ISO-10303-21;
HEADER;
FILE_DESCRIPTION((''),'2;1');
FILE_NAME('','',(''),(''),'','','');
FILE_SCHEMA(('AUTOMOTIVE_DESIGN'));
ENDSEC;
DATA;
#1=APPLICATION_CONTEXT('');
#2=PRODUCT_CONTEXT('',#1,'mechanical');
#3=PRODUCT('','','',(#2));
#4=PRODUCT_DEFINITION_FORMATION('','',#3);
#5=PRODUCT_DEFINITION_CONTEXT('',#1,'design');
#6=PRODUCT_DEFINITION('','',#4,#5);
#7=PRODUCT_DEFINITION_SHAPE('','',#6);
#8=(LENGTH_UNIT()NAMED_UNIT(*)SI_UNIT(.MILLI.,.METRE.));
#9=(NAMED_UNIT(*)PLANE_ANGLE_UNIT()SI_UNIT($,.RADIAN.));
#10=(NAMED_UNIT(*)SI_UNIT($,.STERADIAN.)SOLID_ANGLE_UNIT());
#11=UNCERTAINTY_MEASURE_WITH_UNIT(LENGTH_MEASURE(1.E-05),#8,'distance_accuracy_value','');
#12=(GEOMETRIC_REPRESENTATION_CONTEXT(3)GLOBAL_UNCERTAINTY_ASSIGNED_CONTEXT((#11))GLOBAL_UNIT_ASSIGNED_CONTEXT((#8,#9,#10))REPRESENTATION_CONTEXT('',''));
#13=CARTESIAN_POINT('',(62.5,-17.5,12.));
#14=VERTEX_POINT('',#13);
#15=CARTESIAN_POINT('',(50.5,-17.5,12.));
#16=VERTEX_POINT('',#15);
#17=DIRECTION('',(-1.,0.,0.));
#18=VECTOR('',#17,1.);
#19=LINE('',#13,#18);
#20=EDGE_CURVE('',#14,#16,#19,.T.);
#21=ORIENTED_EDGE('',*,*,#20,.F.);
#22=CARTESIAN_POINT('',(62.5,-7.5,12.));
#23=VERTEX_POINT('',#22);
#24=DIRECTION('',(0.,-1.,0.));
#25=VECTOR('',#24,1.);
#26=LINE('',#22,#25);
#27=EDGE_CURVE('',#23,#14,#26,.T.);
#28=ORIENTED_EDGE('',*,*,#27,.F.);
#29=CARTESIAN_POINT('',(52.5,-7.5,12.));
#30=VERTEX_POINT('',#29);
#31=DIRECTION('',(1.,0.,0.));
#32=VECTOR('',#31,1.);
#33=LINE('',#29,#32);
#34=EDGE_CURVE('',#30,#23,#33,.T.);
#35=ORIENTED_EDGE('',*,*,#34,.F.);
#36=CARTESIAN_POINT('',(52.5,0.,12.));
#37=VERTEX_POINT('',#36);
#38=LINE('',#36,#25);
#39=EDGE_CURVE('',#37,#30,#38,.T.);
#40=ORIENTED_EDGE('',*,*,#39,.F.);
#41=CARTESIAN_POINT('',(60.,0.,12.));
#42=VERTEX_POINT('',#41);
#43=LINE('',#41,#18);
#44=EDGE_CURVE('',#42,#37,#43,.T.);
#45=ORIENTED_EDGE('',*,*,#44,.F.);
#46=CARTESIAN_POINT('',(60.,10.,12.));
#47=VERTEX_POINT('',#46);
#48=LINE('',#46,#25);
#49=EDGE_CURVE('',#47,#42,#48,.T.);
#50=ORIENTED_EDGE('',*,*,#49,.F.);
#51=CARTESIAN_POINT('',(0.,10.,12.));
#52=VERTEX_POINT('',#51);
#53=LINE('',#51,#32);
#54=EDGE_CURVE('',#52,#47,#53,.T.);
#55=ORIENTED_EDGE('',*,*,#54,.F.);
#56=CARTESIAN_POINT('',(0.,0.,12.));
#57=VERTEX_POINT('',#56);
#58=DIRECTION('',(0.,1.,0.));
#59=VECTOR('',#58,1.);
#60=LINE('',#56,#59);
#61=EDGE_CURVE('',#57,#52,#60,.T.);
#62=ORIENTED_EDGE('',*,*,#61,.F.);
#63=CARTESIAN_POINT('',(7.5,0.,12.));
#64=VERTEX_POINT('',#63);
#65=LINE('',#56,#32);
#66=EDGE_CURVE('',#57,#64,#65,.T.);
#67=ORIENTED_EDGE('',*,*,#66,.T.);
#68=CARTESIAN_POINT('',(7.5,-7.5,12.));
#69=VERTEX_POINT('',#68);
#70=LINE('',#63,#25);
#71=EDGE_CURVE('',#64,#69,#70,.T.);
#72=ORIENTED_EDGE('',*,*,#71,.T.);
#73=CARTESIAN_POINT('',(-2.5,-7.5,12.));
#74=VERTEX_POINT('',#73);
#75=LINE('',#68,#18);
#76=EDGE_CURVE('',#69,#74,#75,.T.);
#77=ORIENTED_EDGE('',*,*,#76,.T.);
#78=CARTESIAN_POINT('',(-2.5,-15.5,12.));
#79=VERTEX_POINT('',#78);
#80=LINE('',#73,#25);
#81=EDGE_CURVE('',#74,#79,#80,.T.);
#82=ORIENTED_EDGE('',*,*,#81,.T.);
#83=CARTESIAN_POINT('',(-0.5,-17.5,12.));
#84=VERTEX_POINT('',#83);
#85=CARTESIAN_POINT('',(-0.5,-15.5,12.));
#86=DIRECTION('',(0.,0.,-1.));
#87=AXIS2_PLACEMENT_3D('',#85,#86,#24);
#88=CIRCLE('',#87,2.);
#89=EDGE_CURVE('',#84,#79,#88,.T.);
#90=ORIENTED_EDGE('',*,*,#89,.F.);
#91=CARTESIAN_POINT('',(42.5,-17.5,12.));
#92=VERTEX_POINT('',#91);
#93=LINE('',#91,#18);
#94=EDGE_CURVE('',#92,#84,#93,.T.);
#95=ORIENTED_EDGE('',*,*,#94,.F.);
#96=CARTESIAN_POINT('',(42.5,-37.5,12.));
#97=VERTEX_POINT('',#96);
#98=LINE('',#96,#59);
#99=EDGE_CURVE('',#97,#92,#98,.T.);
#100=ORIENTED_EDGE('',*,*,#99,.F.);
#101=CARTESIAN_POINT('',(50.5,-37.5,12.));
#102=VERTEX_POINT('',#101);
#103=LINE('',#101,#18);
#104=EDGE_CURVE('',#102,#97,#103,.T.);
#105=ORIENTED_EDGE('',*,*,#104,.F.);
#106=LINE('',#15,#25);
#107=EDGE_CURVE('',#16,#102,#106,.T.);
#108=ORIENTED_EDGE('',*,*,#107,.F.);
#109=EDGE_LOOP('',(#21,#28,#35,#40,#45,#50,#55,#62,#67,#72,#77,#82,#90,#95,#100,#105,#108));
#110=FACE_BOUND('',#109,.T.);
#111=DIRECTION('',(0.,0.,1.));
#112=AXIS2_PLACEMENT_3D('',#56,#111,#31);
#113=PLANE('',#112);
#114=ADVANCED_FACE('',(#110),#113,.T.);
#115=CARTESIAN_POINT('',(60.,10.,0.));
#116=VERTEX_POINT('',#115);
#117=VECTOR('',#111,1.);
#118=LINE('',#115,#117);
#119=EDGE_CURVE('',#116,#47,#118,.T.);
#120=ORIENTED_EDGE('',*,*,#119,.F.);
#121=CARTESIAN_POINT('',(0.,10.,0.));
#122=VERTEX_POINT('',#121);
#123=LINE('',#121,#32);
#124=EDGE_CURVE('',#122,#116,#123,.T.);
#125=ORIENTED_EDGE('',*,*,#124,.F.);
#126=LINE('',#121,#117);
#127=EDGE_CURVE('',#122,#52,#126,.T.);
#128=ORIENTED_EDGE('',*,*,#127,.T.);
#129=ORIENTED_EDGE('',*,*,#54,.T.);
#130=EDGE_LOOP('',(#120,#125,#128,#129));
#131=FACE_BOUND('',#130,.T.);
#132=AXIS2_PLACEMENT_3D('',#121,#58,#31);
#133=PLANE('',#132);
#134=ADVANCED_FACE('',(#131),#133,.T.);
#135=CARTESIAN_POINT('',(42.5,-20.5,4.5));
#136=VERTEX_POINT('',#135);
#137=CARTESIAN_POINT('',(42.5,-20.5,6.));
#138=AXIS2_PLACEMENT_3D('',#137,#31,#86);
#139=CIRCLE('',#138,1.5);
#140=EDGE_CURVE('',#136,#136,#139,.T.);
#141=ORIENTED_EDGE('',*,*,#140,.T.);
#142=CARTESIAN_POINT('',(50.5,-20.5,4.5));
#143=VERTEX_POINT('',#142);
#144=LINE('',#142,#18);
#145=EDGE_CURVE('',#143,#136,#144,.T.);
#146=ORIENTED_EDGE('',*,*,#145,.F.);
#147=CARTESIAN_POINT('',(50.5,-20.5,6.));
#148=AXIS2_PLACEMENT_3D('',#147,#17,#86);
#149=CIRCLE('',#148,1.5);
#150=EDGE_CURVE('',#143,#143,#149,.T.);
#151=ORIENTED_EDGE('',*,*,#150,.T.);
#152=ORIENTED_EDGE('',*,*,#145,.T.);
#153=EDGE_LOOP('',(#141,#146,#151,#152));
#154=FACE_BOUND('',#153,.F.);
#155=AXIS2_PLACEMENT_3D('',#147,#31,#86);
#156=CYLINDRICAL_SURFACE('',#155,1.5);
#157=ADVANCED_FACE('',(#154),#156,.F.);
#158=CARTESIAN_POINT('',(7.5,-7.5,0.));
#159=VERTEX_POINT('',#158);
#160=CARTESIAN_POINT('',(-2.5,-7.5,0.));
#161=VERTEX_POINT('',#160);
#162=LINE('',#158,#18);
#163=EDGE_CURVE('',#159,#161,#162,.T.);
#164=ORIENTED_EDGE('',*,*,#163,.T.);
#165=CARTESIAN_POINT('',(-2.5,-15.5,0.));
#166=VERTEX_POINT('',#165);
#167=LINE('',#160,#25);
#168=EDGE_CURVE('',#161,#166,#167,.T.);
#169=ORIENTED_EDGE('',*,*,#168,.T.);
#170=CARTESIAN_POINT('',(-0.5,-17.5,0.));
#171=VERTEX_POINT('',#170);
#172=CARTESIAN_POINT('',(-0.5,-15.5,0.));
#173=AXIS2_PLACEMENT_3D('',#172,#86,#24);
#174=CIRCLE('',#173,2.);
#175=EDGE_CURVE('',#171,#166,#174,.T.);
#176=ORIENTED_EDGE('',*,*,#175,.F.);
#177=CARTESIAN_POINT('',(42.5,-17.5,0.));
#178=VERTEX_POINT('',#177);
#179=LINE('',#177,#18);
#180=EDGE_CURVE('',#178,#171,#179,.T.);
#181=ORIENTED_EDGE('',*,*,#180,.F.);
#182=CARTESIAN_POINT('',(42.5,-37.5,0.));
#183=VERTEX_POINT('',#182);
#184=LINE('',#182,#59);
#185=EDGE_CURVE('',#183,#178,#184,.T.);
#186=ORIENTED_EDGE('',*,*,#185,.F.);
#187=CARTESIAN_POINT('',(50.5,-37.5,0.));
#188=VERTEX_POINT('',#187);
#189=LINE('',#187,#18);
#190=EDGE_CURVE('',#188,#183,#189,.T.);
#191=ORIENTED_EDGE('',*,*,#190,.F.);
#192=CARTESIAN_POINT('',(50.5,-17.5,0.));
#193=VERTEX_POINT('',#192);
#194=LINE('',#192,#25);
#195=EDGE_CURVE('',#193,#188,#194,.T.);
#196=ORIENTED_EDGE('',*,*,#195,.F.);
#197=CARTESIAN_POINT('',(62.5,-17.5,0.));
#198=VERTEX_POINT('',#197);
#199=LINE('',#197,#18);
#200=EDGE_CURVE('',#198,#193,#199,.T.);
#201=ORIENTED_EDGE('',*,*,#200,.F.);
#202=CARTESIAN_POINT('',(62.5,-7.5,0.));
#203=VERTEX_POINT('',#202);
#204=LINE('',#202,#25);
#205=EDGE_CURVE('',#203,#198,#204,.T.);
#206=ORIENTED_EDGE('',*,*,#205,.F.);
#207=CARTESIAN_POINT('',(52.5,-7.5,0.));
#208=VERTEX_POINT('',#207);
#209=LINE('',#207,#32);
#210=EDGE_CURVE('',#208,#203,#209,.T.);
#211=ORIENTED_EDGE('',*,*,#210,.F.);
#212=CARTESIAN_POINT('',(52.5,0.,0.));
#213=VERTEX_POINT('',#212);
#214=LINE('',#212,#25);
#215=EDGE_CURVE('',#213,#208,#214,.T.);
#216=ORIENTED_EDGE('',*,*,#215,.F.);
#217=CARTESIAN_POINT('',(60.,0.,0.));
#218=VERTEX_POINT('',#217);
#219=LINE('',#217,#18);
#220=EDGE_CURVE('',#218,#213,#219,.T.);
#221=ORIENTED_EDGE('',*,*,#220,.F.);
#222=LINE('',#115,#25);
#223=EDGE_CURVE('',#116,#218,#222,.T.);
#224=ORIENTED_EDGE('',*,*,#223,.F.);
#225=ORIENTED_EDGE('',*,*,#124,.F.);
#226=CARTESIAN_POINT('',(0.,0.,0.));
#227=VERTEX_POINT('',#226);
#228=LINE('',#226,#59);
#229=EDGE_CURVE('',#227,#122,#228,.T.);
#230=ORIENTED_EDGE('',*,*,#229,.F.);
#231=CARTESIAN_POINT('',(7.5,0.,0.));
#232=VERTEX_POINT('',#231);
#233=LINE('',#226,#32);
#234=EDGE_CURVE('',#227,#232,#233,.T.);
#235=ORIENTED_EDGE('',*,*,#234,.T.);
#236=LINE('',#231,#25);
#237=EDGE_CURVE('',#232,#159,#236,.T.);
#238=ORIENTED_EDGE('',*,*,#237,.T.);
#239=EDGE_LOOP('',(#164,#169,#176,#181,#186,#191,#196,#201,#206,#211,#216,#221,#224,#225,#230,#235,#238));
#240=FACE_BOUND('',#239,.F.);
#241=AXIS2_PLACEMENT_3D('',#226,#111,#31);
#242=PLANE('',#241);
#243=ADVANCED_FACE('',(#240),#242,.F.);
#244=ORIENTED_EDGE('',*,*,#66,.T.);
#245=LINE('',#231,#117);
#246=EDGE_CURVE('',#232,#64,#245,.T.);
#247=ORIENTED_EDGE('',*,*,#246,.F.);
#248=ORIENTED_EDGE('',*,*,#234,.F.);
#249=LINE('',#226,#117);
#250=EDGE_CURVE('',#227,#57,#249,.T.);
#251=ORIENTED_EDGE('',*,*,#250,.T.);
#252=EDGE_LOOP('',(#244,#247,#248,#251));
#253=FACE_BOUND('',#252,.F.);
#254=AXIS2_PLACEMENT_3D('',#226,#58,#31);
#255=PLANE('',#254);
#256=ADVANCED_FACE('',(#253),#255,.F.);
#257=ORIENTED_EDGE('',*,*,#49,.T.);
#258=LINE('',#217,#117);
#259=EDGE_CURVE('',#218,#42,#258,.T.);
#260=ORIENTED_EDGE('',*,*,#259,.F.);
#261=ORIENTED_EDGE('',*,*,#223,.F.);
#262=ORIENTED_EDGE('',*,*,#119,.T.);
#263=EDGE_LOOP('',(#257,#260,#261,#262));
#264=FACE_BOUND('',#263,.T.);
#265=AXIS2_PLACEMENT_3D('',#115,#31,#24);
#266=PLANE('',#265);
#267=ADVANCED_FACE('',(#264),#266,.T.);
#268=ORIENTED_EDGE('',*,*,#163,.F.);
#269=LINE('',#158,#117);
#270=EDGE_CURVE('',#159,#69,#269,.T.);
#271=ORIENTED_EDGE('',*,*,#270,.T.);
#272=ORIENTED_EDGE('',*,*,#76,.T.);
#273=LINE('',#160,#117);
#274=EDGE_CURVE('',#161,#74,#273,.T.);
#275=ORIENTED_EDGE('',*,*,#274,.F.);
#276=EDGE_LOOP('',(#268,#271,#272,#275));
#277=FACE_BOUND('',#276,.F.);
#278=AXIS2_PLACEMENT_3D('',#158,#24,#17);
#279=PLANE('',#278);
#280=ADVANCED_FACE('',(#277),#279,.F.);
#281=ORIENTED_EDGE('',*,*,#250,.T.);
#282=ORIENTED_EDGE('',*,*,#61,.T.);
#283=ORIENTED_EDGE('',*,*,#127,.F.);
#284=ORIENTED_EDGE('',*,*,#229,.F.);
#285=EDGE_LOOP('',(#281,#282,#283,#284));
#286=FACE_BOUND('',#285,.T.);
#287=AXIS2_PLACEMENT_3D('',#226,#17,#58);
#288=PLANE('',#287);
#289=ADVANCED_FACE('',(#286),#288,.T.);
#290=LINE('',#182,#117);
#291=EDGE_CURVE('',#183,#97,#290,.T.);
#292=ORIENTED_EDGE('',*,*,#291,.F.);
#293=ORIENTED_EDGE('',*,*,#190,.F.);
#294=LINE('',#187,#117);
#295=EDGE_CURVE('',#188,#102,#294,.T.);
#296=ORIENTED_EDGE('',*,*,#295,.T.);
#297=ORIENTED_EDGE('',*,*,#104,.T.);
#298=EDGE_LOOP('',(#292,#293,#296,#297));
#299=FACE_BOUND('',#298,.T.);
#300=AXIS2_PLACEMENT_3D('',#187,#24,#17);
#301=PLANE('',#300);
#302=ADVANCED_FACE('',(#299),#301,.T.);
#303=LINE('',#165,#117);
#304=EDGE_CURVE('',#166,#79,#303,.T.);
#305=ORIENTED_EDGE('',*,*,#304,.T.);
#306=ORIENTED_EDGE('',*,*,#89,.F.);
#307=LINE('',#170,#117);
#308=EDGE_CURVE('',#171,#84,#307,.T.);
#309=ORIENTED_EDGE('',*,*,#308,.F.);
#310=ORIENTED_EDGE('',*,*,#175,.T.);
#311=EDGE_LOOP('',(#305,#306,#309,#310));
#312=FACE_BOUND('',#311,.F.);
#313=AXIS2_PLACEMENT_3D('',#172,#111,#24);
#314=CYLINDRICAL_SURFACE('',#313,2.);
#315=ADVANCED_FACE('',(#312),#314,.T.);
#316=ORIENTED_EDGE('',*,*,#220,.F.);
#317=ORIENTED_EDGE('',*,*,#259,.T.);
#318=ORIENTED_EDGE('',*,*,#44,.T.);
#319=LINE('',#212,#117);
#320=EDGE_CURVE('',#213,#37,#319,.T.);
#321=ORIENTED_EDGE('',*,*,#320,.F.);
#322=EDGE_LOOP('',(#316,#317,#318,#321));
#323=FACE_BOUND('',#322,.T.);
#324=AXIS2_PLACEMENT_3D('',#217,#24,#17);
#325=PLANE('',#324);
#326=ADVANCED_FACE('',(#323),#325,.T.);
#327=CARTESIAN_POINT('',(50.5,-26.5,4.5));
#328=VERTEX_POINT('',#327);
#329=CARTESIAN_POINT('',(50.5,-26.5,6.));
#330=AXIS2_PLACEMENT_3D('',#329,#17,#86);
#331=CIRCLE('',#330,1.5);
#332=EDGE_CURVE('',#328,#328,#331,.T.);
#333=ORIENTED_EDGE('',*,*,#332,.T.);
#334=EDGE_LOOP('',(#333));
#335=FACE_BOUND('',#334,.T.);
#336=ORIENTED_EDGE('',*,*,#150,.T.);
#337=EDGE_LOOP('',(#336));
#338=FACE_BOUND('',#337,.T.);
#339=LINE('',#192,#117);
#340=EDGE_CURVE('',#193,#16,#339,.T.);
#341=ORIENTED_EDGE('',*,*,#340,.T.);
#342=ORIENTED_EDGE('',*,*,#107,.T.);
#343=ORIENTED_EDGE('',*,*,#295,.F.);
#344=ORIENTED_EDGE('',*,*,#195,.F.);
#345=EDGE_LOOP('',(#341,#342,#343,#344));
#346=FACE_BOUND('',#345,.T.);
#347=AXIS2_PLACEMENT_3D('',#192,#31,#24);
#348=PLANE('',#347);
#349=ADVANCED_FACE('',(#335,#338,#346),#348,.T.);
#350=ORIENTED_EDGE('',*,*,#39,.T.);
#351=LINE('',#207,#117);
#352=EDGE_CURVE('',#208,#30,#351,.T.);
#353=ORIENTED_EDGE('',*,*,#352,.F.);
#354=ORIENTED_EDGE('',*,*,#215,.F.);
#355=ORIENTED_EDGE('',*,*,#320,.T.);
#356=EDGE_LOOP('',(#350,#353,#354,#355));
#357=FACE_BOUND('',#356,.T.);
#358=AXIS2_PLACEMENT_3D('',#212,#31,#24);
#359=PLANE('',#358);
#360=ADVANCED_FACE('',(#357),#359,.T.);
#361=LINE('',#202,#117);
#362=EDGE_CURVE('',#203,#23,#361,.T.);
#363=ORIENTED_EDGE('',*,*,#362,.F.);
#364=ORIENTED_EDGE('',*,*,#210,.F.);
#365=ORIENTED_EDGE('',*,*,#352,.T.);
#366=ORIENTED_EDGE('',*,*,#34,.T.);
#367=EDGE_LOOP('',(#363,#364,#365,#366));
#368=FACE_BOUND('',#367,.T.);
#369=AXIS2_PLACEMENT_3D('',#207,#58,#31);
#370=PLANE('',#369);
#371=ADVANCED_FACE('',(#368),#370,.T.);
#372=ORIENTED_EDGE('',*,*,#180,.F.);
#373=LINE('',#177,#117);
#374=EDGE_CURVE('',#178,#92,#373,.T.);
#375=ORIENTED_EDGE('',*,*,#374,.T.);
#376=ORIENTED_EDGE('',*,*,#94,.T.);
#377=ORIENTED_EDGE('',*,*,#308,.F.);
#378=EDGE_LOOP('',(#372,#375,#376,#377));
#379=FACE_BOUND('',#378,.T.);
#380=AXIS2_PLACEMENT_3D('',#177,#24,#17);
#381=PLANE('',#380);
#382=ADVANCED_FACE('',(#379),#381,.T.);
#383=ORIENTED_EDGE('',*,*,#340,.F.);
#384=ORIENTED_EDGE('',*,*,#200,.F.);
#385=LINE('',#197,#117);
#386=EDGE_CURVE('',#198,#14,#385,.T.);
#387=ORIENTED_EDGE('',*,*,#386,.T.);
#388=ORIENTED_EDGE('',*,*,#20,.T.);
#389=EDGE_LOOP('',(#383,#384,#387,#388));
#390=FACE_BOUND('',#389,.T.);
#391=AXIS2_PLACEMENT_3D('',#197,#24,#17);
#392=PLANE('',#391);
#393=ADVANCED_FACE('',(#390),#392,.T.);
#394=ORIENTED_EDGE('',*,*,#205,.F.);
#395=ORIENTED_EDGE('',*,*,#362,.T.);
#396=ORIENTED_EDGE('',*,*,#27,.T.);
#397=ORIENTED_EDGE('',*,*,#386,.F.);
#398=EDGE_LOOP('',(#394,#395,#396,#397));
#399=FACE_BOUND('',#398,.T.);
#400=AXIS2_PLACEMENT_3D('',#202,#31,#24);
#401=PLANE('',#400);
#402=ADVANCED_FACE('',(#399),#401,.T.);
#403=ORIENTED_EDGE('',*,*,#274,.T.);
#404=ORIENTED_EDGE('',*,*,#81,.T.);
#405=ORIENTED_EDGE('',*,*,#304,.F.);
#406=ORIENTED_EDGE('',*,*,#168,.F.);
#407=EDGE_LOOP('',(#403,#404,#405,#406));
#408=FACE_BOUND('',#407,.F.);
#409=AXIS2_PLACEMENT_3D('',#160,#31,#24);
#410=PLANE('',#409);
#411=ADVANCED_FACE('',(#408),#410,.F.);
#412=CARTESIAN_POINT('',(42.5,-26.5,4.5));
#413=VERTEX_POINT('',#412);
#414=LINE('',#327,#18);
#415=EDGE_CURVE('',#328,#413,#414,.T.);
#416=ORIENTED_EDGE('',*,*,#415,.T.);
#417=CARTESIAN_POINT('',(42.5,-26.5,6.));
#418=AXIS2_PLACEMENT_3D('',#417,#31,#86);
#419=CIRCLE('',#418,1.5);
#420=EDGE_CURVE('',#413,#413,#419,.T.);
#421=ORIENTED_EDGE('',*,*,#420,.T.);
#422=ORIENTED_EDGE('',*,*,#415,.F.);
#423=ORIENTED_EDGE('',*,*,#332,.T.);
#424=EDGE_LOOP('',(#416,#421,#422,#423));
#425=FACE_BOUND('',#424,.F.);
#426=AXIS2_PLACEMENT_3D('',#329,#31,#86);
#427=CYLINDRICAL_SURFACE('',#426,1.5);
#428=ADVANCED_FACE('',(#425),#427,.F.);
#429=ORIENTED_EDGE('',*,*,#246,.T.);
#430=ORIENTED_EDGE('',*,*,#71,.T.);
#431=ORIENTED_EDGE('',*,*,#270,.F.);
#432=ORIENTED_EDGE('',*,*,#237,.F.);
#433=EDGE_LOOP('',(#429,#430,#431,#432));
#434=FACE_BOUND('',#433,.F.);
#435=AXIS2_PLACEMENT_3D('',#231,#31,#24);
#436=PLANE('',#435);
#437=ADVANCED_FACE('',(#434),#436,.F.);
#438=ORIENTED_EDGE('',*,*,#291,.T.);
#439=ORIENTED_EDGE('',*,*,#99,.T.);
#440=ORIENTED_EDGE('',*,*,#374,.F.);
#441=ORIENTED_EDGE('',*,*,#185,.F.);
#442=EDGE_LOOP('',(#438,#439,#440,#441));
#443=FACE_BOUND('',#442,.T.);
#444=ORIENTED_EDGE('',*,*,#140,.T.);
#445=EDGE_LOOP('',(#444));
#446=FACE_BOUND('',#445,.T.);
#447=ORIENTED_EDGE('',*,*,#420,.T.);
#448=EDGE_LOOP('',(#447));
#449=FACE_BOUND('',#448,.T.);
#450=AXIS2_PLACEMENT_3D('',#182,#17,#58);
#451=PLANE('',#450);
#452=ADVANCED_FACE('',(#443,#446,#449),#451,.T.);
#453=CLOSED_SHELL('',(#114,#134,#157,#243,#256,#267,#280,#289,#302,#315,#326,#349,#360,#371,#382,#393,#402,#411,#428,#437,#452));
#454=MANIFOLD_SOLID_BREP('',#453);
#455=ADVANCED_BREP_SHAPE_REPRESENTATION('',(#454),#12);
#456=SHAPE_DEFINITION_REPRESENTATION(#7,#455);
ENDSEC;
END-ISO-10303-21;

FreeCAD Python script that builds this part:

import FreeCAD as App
import Part
import Sketcher

V = App.Vector
Q = App.Units.Quantity


def edges_at(feature, points):
    """Names of the edges that pass closest to the given points."""
    edges = feature.Shape.Edges
    near = lambda p: min(range(len(edges)), key=lambda i: edges[i].distToShape(Part.Vertex(*p))[0])
    return sorted({f"Edge{near(p) + 1}" for p in points})

doc = App.newDocument("Part")
params = doc.addObject("Spreadsheet::Sheet", "Params")
for row, (alias, value) in enumerate([
    ("sketch1_width", "10 mm"),
    ("sketch1_width2", "8 mm"),
    ("sketch1_width3", "12 mm"),
    ("sketch1_width4", "60 mm"),
    ("sketch1_height", "20 mm"),
    ("pad1_length", "12 mm"),
    ("sketch2_diameter", "3 mm"),
    ("fillet_radius", "2 mm"),
], start=1):
    params.set(f"A{row}", alias)
    params.set(f"B{row}", "=" + value)
    params.setAlias(f"B{row}", alias)

body = doc.addObject("PartDesign::Body", "Body")

# Sketch on XY plane
sketch1 = doc.addObject("Sketcher::SketchObject", "Sketch")
body.addObject(sketch1)
sketch1.AttachmentSupport = (doc.XY_Plane, [""])
sketch1.MapMode = "FlatFace"
sketch1.addGeometry([
    Part.LineSegment(V(0, 10, 0), V(0, 0, 0)),  # 0
    Part.LineSegment(V(0, 0, 0), V(8, 0, 0)),  # 1
    Part.LineSegment(V(8, 0, 0), V(8, -8, 0)),  # 2
    Part.LineSegment(V(8, -8, 0), V(-2, -8, 0)),  # 3
    Part.LineSegment(V(-2, -8, 0), V(-2, -18, 0)),  # 4
    Part.LineSegment(V(-2, -18, 0), V(42, -18, 0)),  # 5
    Part.LineSegment(V(42, -18, 0), V(42, -38, 0)),  # 6
    Part.LineSegment(V(42, -38, 0), V(50, -38, 0)),  # 7
    Part.LineSegment(V(50, -38, 0), V(50, -18, 0)),  # 8
    Part.LineSegment(V(50, -18, 0), V(62, -18, 0)),  # 9
    Part.LineSegment(V(62, -18, 0), V(62, -8, 0)),  # 10
    Part.LineSegment(V(62, -8, 0), V(52, -8, 0)),  # 11
    Part.LineSegment(V(52, -8, 0), V(52, 0, 0)),  # 12
    Part.LineSegment(V(52, 0, 0), V(60, 0, 0)),  # 13
    Part.LineSegment(V(60, 0, 0), V(60, 10, 0)),  # 14
    Part.LineSegment(V(60, 10, 0), V(0, 10, 0)),  # 15
], False)
sketch1.addConstraint([
    Sketcher.Constraint("Coincident", 0, 2, 1, 1),
    Sketcher.Constraint("Coincident", 1, 2, 2, 1),
    Sketcher.Constraint("Coincident", 2, 2, 3, 1),
    Sketcher.Constraint("Coincident", 3, 2, 4, 1),
    Sketcher.Constraint("Coincident", 4, 2, 5, 1),
    Sketcher.Constraint("Coincident", 5, 2, 6, 1),
    Sketcher.Constraint("Coincident", 6, 2, 7, 1),
    Sketcher.Constraint("Coincident", 7, 2, 8, 1),
    Sketcher.Constraint("Coincident", 8, 2, 9, 1),
    Sketcher.Constraint("Coincident", 9, 2, 10, 1),
    Sketcher.Constraint("Coincident", 10, 2, 11, 1),
    Sketcher.Constraint("Coincident", 11, 2, 12, 1),
    Sketcher.Constraint("Coincident", 12, 2, 13, 1),
    Sketcher.Constraint("Coincident", 13, 2, 14, 1),
    Sketcher.Constraint("Coincident", 14, 2, 15, 1),
    Sketcher.Constraint("Coincident", 15, 2, 0, 1),
    Sketcher.Constraint("Vertical", 0),
    Sketcher.Constraint("Horizontal", 1),
    Sketcher.Constraint("Vertical", 2),
    Sketcher.Constraint("Horizontal", 3),
    Sketcher.Constraint("Vertical", 4),
    Sketcher.Constraint("Horizontal", 5),
    Sketcher.Constraint("Vertical", 6),
    Sketcher.Constraint("Horizontal", 7),
    Sketcher.Constraint("Vertical", 8),
    Sketcher.Constraint("Horizontal", 9),
    Sketcher.Constraint("Vertical", 10),
    Sketcher.Constraint("Horizontal", 11),
    Sketcher.Constraint("Vertical", 12),
    Sketcher.Constraint("Horizontal", 13),
    Sketcher.Constraint("Vertical", 14),
    Sketcher.Constraint("Horizontal", 15),
    Sketcher.Constraint("Coincident", 0, 2, -1, 1),
    Sketcher.Constraint("PointOnObject", 12, 2, -1),
    Sketcher.Constraint("Horizontal", 5, 2, 8, 2),
    Sketcher.Constraint("Horizontal", 3, 2, 10, 2),
    Sketcher.Constraint("Equal", 3, 11),
    Sketcher.Constraint("Equal", 1, 13),
    Sketcher.Constraint("Equal", 11, 0),
    Sketcher.Constraint("Equal", 13, 2),
    Sketcher.Constraint("Equal", 0, 4),
    Sketcher.Constraint("DistanceX", 3, 2, 3, 1, Q("10 mm")),
    Sketcher.Constraint("DistanceX", 7, 1, 7, 2, Q("8 mm")),
    Sketcher.Constraint("DistanceX", 9, 1, 9, 2, Q("12 mm")),
    Sketcher.Constraint("DistanceX", 15, 2, 15, 1, Q("60 mm")),
    Sketcher.Constraint("DistanceY", 6, 2, 6, 1, Q("20 mm")),
    Sketcher.Constraint("DistanceX", 1, 1, 1, 2, Q("7.5 mm")),
])
sketch1.setExpression("Constraints[41]", "Params.sketch1_width")
sketch1.setExpression("Constraints[42]", "Params.sketch1_width2")
sketch1.setExpression("Constraints[43]", "Params.sketch1_width3")
sketch1.setExpression("Constraints[44]", "Params.sketch1_width4")
sketch1.setExpression("Constraints[45]", "Params.sketch1_height")
pad1 = doc.addObject("PartDesign::Pad", "Pad")
body.addObject(pad1)
pad1.Profile = sketch1
pad1.setExpression("Length", "Params.pad1_length")

# Sketch on YZ plane
sketch2 = doc.addObject("Sketcher::SketchObject", "Sketch001")
body.addObject(sketch2)
sketch2.AttachmentSupport = (doc.YZ_Plane, [""])
sketch2.MapMode = "FlatFace"
sketch2.AttachmentOffset = App.Placement(V(0, 0, 50.5), App.Rotation())
sketch2.addGeometry([
    Part.Circle(V(-26.5, 6, 0), V(0, 0, 1), 1.5),
    Part.Circle(V(-20.5, 6, 0), V(0, 0, 1), 1.5),
], False)
sketch2.addConstraint([
    Sketcher.Constraint("Equal", 0, 1),
    Sketcher.Constraint("Horizontal", 0, 3, 1, 3),
    Sketcher.Constraint("Diameter", 0, Q("3 mm")),
    Sketcher.Constraint("DistanceY", -1, 1, 0, 3, Q("6 mm")),
    Sketcher.Constraint("DistanceX", 0, 3, 1, 3, Q("6 mm")),
    Sketcher.Constraint("DistanceX", 0, 3, -1, 1, Q("26.5 mm")),
])
sketch2.setExpression("Constraints[2]", "Params.sketch2_diameter")
pocket1 = doc.addObject("PartDesign::Pocket", "Pocket")
body.addObject(pocket1)
pocket1.Profile = sketch2
pocket1.Type = "ThroughAll"
doc.recompute()

fillet = doc.addObject("PartDesign::Fillet", "Fillet")
body.addObject(fillet)
fillet.Base = (pocket1, edges_at(pocket1, [(-2.5, -17.5, 6)]))
fillet.setExpression("Radius", "Params.fillet_radius")

doc.recompute()
